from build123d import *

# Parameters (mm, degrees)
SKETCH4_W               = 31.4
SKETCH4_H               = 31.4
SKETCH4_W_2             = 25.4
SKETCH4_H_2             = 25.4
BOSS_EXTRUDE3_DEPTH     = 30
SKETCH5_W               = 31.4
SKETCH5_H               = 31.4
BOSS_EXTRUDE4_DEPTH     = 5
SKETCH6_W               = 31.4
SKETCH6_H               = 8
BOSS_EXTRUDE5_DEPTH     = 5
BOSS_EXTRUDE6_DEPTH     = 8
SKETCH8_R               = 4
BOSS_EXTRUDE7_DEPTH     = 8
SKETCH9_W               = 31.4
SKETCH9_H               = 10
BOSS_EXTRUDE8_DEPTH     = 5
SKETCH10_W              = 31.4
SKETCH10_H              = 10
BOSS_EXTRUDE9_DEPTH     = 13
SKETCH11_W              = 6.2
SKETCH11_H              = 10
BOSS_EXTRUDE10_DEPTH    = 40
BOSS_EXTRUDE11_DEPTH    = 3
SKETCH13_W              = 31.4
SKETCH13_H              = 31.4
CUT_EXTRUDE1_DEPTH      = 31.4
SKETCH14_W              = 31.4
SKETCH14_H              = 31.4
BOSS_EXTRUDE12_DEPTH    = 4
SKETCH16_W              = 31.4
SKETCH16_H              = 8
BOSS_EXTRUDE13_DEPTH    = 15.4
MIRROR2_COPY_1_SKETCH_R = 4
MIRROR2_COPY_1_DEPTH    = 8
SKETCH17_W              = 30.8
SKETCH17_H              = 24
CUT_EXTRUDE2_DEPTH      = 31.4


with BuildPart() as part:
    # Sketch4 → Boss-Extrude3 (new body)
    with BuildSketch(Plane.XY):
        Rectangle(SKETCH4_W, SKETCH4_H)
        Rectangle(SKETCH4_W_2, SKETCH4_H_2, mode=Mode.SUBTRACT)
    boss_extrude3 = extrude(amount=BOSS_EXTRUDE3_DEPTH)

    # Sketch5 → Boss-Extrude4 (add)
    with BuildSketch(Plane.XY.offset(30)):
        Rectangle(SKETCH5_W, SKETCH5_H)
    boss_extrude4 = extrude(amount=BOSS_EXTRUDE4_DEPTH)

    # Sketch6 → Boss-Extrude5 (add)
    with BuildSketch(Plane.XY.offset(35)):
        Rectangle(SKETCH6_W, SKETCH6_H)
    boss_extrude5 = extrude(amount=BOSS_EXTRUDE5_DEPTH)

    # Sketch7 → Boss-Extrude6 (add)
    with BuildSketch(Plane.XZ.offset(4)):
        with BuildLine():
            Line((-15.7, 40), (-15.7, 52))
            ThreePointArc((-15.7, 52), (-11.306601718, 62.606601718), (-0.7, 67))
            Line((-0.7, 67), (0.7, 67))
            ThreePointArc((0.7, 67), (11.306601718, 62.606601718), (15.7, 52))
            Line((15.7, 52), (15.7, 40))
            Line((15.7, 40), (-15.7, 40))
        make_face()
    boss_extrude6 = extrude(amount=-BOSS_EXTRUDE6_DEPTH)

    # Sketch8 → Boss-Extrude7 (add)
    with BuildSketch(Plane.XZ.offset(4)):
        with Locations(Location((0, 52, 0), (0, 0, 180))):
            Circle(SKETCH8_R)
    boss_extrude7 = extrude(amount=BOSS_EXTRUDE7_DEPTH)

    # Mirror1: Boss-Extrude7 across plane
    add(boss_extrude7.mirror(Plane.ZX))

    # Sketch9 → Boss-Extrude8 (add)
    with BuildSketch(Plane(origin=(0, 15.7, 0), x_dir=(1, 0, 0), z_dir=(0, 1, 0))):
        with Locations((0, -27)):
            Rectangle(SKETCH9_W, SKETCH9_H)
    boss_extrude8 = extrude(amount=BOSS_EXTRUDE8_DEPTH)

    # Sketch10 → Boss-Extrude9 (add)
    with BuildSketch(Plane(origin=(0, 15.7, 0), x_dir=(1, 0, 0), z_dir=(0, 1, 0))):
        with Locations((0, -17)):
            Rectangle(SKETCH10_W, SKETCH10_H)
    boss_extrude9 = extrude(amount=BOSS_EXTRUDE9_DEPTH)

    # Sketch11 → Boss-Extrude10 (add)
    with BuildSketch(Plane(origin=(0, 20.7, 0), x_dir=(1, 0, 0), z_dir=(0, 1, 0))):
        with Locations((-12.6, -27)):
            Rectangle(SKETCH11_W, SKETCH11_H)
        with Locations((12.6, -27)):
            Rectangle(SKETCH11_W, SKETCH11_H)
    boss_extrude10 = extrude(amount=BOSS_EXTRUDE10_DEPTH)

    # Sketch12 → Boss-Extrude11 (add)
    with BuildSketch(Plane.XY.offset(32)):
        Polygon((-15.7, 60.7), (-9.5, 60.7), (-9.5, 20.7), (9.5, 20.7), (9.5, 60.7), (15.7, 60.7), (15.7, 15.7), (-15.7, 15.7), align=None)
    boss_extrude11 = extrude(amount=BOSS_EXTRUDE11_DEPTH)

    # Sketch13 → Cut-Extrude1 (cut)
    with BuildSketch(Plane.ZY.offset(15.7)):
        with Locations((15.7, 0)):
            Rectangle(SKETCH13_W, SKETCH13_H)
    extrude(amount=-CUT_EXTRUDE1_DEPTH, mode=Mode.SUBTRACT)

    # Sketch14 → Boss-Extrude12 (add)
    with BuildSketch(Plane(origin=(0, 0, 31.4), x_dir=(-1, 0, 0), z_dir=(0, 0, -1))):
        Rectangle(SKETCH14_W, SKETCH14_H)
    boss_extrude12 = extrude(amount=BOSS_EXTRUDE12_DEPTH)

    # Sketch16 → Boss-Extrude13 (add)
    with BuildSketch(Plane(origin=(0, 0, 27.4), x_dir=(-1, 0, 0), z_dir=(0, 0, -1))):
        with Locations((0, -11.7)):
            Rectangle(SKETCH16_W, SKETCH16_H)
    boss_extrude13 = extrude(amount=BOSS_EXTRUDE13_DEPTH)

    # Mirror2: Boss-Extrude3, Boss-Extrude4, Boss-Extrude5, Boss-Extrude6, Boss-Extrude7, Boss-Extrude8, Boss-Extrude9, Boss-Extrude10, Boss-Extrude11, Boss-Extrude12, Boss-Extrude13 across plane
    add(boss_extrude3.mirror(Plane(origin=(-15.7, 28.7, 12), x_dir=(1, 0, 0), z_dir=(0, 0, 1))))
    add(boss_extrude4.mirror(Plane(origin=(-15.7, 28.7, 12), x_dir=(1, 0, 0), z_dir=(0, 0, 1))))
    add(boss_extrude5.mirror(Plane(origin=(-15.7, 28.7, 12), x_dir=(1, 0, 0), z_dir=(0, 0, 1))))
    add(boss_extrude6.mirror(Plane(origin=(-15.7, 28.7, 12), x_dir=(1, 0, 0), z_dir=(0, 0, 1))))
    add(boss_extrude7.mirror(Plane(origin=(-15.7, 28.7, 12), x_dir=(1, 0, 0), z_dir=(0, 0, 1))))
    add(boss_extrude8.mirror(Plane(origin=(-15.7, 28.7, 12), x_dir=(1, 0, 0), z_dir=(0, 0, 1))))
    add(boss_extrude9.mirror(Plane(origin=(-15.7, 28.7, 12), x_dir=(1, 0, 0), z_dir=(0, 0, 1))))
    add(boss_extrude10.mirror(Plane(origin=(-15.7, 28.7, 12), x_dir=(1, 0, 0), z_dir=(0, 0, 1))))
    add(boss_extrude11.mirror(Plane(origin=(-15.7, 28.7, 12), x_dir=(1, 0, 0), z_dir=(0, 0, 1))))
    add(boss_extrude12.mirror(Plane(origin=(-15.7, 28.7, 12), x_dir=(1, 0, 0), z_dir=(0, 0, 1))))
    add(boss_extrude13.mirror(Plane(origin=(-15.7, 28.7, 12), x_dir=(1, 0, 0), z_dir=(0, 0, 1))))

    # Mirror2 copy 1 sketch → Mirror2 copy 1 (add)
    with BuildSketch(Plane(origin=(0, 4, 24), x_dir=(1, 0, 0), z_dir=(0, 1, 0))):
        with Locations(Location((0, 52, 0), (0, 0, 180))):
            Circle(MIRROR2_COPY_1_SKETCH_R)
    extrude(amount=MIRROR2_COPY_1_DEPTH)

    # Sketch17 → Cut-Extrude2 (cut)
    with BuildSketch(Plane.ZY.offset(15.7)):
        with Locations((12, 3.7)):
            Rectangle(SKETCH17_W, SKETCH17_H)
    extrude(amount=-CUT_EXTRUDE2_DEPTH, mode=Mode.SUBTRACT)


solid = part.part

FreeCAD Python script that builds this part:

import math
import FreeCAD as App
import Part
import Sketcher
from FreeCAD import Vector


def add_polygon(sketch, points):
    """Adds a closed chain of lines whose ends are joined by coincident constraints."""
    first, n = sketch.GeometryCount, len(points)
    for a, b in zip(points, points[1:] + points[:1]):
        sketch.addGeometry(Part.LineSegment(App.Vector(*a, 0), App.Vector(*b, 0)), False)
    for i in range(n):
        sketch.addConstraint(Sketcher.Constraint("Coincident", first + i, 2, first + (i + 1) % n, 1))

doc = App.newDocument("Part")
body = doc.addObject("PartDesign::Body", "Body")

sketch1 = body.newObject("Sketcher::SketchObject", "Sketch")
sketch1.AttachmentSupport = (doc.getObject("XY_Plane"), [""])
sketch1.MapMode = "FlatFace"
add_polygon(sketch1, [(-16, 16), (-16, -16), (16, -16), (16, 16)])
add_polygon(sketch1, [(13, -13), (-13, -13), (-13, 13), (13, 13)])
sketch1.addConstraint([
    Sketcher.Constraint("Vertical", 0),
    Sketcher.Constraint("Horizontal", 1),
    Sketcher.Constraint("Vertical", 2),
    Sketcher.Constraint("Horizontal", 3),
    Sketcher.Constraint("Horizontal", 4),
    Sketcher.Constraint("Vertical", 5),
    Sketcher.Constraint("Horizontal", 6),
    Sketcher.Constraint("Vertical", 7),
    Sketcher.Constraint("Symmetric", 0, 2, 2, 2, -1, 1),
    Sketcher.Constraint("Symmetric", 4, 2, 6, 2, -1, 1),
    Sketcher.Constraint("Equal", 3, 0),
    Sketcher.Constraint("Equal", 6, 5),
    Sketcher.Constraint("DistanceX", 1, 1, 1, 2, 31.4),
    Sketcher.Constraint("DistanceX", 4, 2, 4, 1, 25.4),
])
pad1 = body.newObject("PartDesign::Pad", "Pad")
pad1.Profile = sketch1
pad1.Length = 30

sketch2 = body.newObject("Sketcher::SketchObject", "Sketch001")
sketch2.AttachmentSupport = (doc.getObject("XY_Plane"), [""])
sketch2.MapMode = "FlatFace"
sketch2.AttachmentOffset = App.Placement(Vector(0, 0, 30), App.Rotation())
add_polygon(sketch2, [(-16, 16), (-16, -16), (16, -16), (16, 16)])
sketch2.addConstraint([
    Sketcher.Constraint("Vertical", 0),
    Sketcher.Constraint("Horizontal", 1),
    Sketcher.Constraint("Vertical", 2),
    Sketcher.Constraint("Horizontal", 3),
    Sketcher.Constraint("Symmetric", 0, 2, 2, 2, -1, 1),
    Sketcher.Constraint("Equal", 3, 0),
    Sketcher.Constraint("DistanceX", 1, 1, 1, 2, 31.4),
])
pad2 = body.newObject("PartDesign::Pad", "Pad001")
pad2.Profile = sketch2
pad2.Length = 5

sketch3 = body.newObject("Sketcher::SketchObject", "Sketch002")
sketch3.AttachmentSupport = (doc.getObject("XY_Plane"), [""])
sketch3.MapMode = "FlatFace"
sketch3.AttachmentOffset = App.Placement(Vector(0, 0, 35), App.Rotation())
add_polygon(sketch3, [(-16, 4), (-16, -4), (16, -4), (16, 4)])
sketch3.addConstraint([
    Sketcher.Constraint("Vertical", 0),
    Sketcher.Constraint("Horizontal", 1),
    Sketcher.Constraint("Vertical", 2),
    Sketcher.Constraint("Horizontal", 3),
    Sketcher.Constraint("Symmetric", 0, 2, 2, 2, -1, 1),
    Sketcher.Constraint("DistanceY", 0, 2, 0, 1, 8.0),
    Sketcher.Constraint("DistanceX", 1, 1, 1, 2, 31.4),
])
pad3 = body.newObject("PartDesign::Pad", "Pad002")
pad3.Profile = sketch3
pad3.Length = 5

sketch4 = body.newObject("Sketcher::SketchObject", "Sketch003")
sketch4.AttachmentSupport = (doc.getObject("XZ_Plane"), [""])
sketch4.MapMode = "FlatFace"
sketch4.AttachmentOffset = App.Placement(Vector(0, 0, 4), App.Rotation())
sketch4.addGeometry([
    Part.LineSegment(Vector(-15.7, 52, 0), Vector(-15.7, 40, 0)),
    Part.LineSegment(Vector(-15.7, 40, 0), Vector(15.7, 40, 0)),
    Part.LineSegment(Vector(15.7, 40, 0), Vector(15.7, 52, 0)),
    Part.ArcOfCircle(Part.Circle(Vector(0.7, 52, 0), Vector(0, 0, 1), 15), math.radians(0), math.radians(90)),
    Part.LineSegment(Vector(0.7, 67, 0), Vector(-0.7, 67, 0)),
    Part.ArcOfCircle(Part.Circle(Vector(-0.7, 52, 0), Vector(0, 0, 1), 15), math.radians(90), math.radians(180)),
], False)
sketch4.addConstraint([
    Sketcher.Constraint("Coincident", 0, 2, 1, 1),
    Sketcher.Constraint("Coincident", 1, 2, 2, 1),
    Sketcher.Constraint("Tangent", 2, 2, 3, 1),
    Sketcher.Constraint("Tangent", 3, 2, 4, 1),
    Sketcher.Constraint("Tangent", 4, 2, 5, 1),
    Sketcher.Constraint("Tangent", 5, 2, 0, 1),
    Sketcher.Constraint("Vertical", 0),
    Sketcher.Constraint("Horizontal", 1),
    Sketcher.Constraint("Vertical", 2),
    Sketcher.Constraint("Horizontal", 4),
    Sketcher.Constraint("Equal", 3, 5),
    Sketcher.Constraint("Radius", 3, 15.0),
    Sketcher.Constraint("DistanceY", 0, 2, 0, 1, 12.0),
    Sketcher.Constraint("DistanceX", 1, 1, 1, 2, 31.4),
    Sketcher.Constraint("DistanceY", -1, 1, 3, 3, 52.0),
    Sketcher.Constraint("DistanceX", -1, 1, 3, 3, 0.7),
])
pad4 = body.newObject("PartDesign::Pad", "Pad003")
pad4.Profile = sketch4
pad4.Length = 8
pad4.Reversed = True

sketch5 = body.newObject("Sketcher::SketchObject", "Sketch004")
sketch5.AttachmentSupport = (doc.getObject("XZ_Plane"), [""])
sketch5.MapMode = "FlatFace"
sketch5.AttachmentOffset = App.Placement(Vector(0, 0, 4), App.Rotation())
sketch5.addGeometry(Part.Circle(Vector(0, 52, 0), Vector(0, 0, 1), 4), False)
sketch5.addConstraint([
    Sketcher.Constraint("PointOnObject", 0, 3, -2),
    Sketcher.Constraint("Diameter", 0, 8.0),
    Sketcher.Constraint("DistanceY", -1, 1, 0, 3, 52.0),
])
pad5 = body.newObject("PartDesign::Pad", "Pad004")
pad5.Profile = sketch5
pad5.Length = 8
doc.recompute()

mirrored = body.newObject("PartDesign::Mirrored", "Mirrored")
mirrored.Originals = [pad5]
mirrored.MirrorPlane = (doc.getObject("XZ_Plane"), [""])
body.Tip = mirrored

sketch6 = body.newObject("Sketcher::SketchObject", "Sketch005")
sketch6.AttachmentSupport = (doc.getObject("XZ_Plane"), [""])
sketch6.MapMode = "FlatFace"
sketch6.AttachmentOffset = App.Placement(Vector(0, 0, -15.7), App.Rotation())
add_polygon(sketch6, [(-16, 22), (-16, 32), (16, 32), (16, 22)])
sketch6.addConstraint([
    Sketcher.Constraint("Vertical", 0),
    Sketcher.Constraint("Horizontal", 1),
    Sketcher.Constraint("Vertical", 2),
    Sketcher.Constraint("Horizontal", 3),
    Sketcher.Constraint("DistanceY", 0, 1, 0, 2, 10.0),
    Sketcher.Constraint("DistanceX", 1, 1, 1, 2, 31.4),
    Sketcher.Constraint("DistanceY", -1, 1, 0, 2, 32.0),
    Sketcher.Constraint("DistanceX", 0, 2, -1, 1, 15.7),
])
pad6 = body.newObject("PartDesign::Pad", "Pad005")
pad6.Profile = sketch6
pad6.Length = 5
pad6.Reversed = True

sketch7 = body.newObject("Sketcher::SketchObject", "Sketch006")
sketch7.AttachmentSupport = (doc.getObject("XZ_Plane"), [""])
sketch7.MapMode = "FlatFace"
sketch7.AttachmentOffset = App.Placement(Vector(0, 0, -15.7), App.Rotation())
add_polygon(sketch7, [(-16, 12), (-16, 22), (16, 22), (16, 12)])
sketch7.addConstraint([
    Sketcher.Constraint("Vertical", 0),
    Sketcher.Constraint("Horizontal", 1),
    Sketcher.Constraint("Vertical", 2),
    Sketcher.Constraint("Horizontal", 3),
    Sketcher.Constraint("DistanceY", 0, 1, 0, 2, 10.0),
    Sketcher.Constraint("DistanceX", 1, 1, 1, 2, 31.4),
    Sketcher.Constraint("DistanceY", -1, 1, 0, 2, 22.0),
    Sketcher.Constraint("DistanceX", 0, 2, -1, 1, 15.7),
])
pad7 = body.newObject("PartDesign::Pad", "Pad006")
pad7.Profile = sketch7
pad7.Length = 13
pad7.Reversed = True

sketch8 = body.newObject("Sketcher::SketchObject", "Sketch007")
sketch8.AttachmentSupport = (doc.getObject("XZ_Plane"), [""])
sketch8.MapMode = "FlatFace"
sketch8.AttachmentOffset = App.Placement(Vector(0, 0, -20.7), App.Rotation())
add_polygon(sketch8, [(-16, 22), (-16, 32), (-10, 32), (-10, 22)])
add_polygon(sketch8, [(10, 22), (10, 32), (16, 32), (16, 22)])
sketch8.addConstraint([
    Sketcher.Constraint("Vertical", 0),
    Sketcher.Constraint("Horizontal", 1),
    Sketcher.Constraint("Vertical", 2),
    Sketcher.Constraint("Horizontal", 3),
    Sketcher.Constraint("Vertical", 4),
    Sketcher.Constraint("Horizontal", 5),
    Sketcher.Constraint("Vertical", 6),
    Sketcher.Constraint("Horizontal", 7),
    Sketcher.Constraint("Symmetric", 1, 2, 4, 2, -2),
    Sketcher.Constraint("Symmetric", 3, 2, 6, 2, -2),
    Sketcher.Constraint("DistanceY", 0, 1, 0, 2, 10.0),
    Sketcher.Constraint("DistanceX", 1, 1, 1, 2, 6.2),
    Sketcher.Constraint("DistanceY", -1, 1, 0, 2, 32.0),
    Sketcher.Constraint("DistanceX", 1, 2, 4, 2, 19.0),
])
pad8 = body.newObject("PartDesign::Pad", "Pad007")
pad8.Profile = sketch8
pad8.Length = 40
pad8.Reversed = True

sketch9 = body.newObject("Sketcher::SketchObject", "Sketch008")
sketch9.AttachmentSupport = (doc.getObject("XY_Plane"), [""])
sketch9.MapMode = "FlatFace"
sketch9.AttachmentOffset = App.Placement(Vector(0, 0, 32), App.Rotation())
add_polygon(sketch9, [(-10, 61), (-16, 61), (-16, 16), (16, 16), (16, 61), (10, 61), (10, 21), (-10, 21)])
sketch9.addConstraint([
    Sketcher.Constraint("Horizontal", 0),
    Sketcher.Constraint("Vertical", 1),
    Sketcher.Constraint("Horizontal", 2),
    Sketcher.Constraint("Vertical", 3),
    Sketcher.Constraint("Horizontal", 4),
    Sketcher.Constraint("Vertical", 5),
    Sketcher.Constraint("Horizontal", 6),
    Sketcher.Constraint("Vertical", 7),
    Sketcher.Constraint("Symmetric", 0, 2, 3, 2, -2),
    Sketcher.Constraint("Equal", 0, 4),
    Sketcher.Constraint("DistanceX", 6, 2, 6, 1, 19.0),
    Sketcher.Constraint("DistanceY", 1, 2, 1, 1, 45.0),
    Sketcher.Constraint("DistanceY", 5, 2, 5, 1, 40.0),
    Sketcher.Constraint("DistanceX", 0, 2, 0, 1, 6.2),
    Sketcher.Constraint("DistanceY", -1, 1, 0, 2, 60.7),
])
pad9 = body.newObject("PartDesign::Pad", "Pad008")
pad9.Profile = sketch9
pad9.Length = 3

sketch10 = body.newObject("Sketcher::SketchObject", "Sketch009")
sketch10.AttachmentSupport = (doc.getObject("YZ_Plane"), [""])
sketch10.MapMode = "FlatFace"
sketch10.AttachmentOffset = App.Placement(Vector(0, 0, -15.7), App.Rotation())
add_polygon(sketch10, [(16, 0), (-16, 0), (-16, 31), (16, 31)])
sketch10.addConstraint([
    Sketcher.Constraint("Horizontal", 0),
    Sketcher.Constraint("Vertical", 1),
    Sketcher.Constraint("Horizontal", 2),
    Sketcher.Constraint("Vertical", 3),
    Sketcher.Constraint("Symmetric", 0, 2, 3, 2, -1, 1),
    Sketcher.Constraint("Equal", 2, 1),
    Sketcher.Constraint("DistanceX", 0, 2, 0, 1, 31.4),
])
pocket1 = body.newObject("PartDesign::Pocket", "Pocket")
pocket1.Profile = sketch10
pocket1.Length = 31.4
pocket1.Reversed = True

sketch11 = body.newObject("Sketcher::SketchObject", "Sketch010")
sketch11.AttachmentSupport = (doc.getObject("XY_Plane"), [""])
sketch11.MapMode = "FlatFace"
sketch11.AttachmentOffset = App.Placement(Vector(0, 0, 31.4), App.Rotation())
add_polygon(sketch11, [(16, 16), (16, -16), (-16, -16), (-16, 16)])
sketch11.addConstraint([
    Sketcher.Constraint("Vertical", 0),
    Sketcher.Constraint("Horizontal", 1),
    Sketcher.Constraint("Vertical", 2),
    Sketcher.Constraint("Horizontal", 3),
    Sketcher.Constraint("Symmetric", 0, 2, 2, 2, -1, 1),
    Sketcher.Constraint("Equal", 3, 0),
    Sketcher.Constraint("DistanceX", 1, 2, 1, 1, 31.4),
])
pad10 = body.newObject("PartDesign::Pad", "Pad009")
pad10.Profile = sketch11
pad10.Length = 4
pad10.Reversed = True

sketch12 = body.newObject("Sketcher::SketchObject", "Sketch011")
sketch12.AttachmentSupport = (doc.getObject("XY_Plane"), [""])
sketch12.MapMode = "FlatFace"
sketch12.AttachmentOffset = App.Placement(Vector(0, 0, 27.4), App.Rotation())
add_polygon(sketch12, [(16, -8), (16, -16), (-16, -16), (-16, -8)])
sketch12.addConstraint([
    Sketcher.Constraint("Vertical", 0),
    Sketcher.Constraint("Horizontal", 1),
    Sketcher.Constraint("Vertical", 2),
    Sketcher.Constraint("Horizontal", 3),
    Sketcher.Constraint("DistanceY", 0, 2, 0, 1, 8.0),
    Sketcher.Constraint("DistanceX", 1, 2, 1, 1, 31.4),
    Sketcher.Constraint("DistanceX", -1, 1, 0, 2, 15.7),
    Sketcher.Constraint("DistanceY", 0, 2, -1, 1, 15.7),
])
pad11 = body.newObject("PartDesign::Pad", "Pad010")
pad11.Profile = sketch12
pad11.Length = 15.4
pad11.Reversed = True
doc.recompute()

datumplane = body.newObject("PartDesign::Plane", "DatumPlane")
datumplane.AttachmentSupport = (doc.getObject("XY_Plane"), [""])
datumplane.MapMode = "FlatFace"
datumplane.AttachmentOffset = App.Placement(Vector(0, 0, 12), App.Rotation())
mirrored2 = body.newObject("PartDesign::Mirrored", "Mirrored001")
mirrored2.Originals = [pad1, pad2, pad3, pad4, pad5, pad6, pad7, pad8, pad9, pad10, pad11]
mirrored2.MirrorPlane = (datumplane, [""])
body.Tip = mirrored2

sketch13 = body.newObject("Sketcher::SketchObject", "Sketch012")
sketch13.AttachmentSupport = (doc.getObject("XZ_Plane"), [""])
sketch13.MapMode = "FlatFace"
sketch13.AttachmentOffset = App.Placement(Vector(0, 0, -4), App.Rotation())
sketch13.addGeometry(Part.Circle(Vector(0, -28, 0), Vector(0, 0, 1), 4), False)
sketch13.addConstraint([
    Sketcher.Constraint("PointOnObject", 0, 3, -2),
    Sketcher.Constraint("Diameter", 0, 8.0),
    Sketcher.Constraint("DistanceY", 0, 3, -1, 1, 28.0),
])
pad12 = body.newObject("PartDesign::Pad", "Pad011")
pad12.Profile = sketch13
pad12.Length = 8
pad12.Reversed = True

sketch14 = body.newObject("Sketcher::SketchObject", "Sketch013")
sketch14.AttachmentSupport = (doc.getObject("YZ_Plane"), [""])
sketch14.MapMode = "FlatFace"
sketch14.AttachmentOffset = App.Placement(Vector(0, 0, -15.7), App.Rotation())
add_polygon(sketch14, [(16, -3), (-8, -3), (-8, 27), (16, 27)])
sketch14.addConstraint([
    Sketcher.Constraint("Horizontal", 0),
    Sketcher.Constraint("Vertical", 1),
    Sketcher.Constraint("Horizontal", 2),
    Sketcher.Constraint("Vertical", 3),
    Sketcher.Constraint("DistanceX", 0, 2, 0, 1, 24.0),
    Sketcher.Constraint("DistanceY", 1, 1, 1, 2, 30.8),
    Sketcher.Constraint("DistanceX", 0, 2, -1, 1, 8.3),
    Sketcher.Constraint("DistanceY", 0, 2, -1, 1, 3.4),
])
pocket2 = body.newObject("PartDesign::Pocket", "Pocket001")
pocket2.Profile = sketch14
pocket2.Length = 31.4
pocket2.Reversed = True

doc.recompute()
